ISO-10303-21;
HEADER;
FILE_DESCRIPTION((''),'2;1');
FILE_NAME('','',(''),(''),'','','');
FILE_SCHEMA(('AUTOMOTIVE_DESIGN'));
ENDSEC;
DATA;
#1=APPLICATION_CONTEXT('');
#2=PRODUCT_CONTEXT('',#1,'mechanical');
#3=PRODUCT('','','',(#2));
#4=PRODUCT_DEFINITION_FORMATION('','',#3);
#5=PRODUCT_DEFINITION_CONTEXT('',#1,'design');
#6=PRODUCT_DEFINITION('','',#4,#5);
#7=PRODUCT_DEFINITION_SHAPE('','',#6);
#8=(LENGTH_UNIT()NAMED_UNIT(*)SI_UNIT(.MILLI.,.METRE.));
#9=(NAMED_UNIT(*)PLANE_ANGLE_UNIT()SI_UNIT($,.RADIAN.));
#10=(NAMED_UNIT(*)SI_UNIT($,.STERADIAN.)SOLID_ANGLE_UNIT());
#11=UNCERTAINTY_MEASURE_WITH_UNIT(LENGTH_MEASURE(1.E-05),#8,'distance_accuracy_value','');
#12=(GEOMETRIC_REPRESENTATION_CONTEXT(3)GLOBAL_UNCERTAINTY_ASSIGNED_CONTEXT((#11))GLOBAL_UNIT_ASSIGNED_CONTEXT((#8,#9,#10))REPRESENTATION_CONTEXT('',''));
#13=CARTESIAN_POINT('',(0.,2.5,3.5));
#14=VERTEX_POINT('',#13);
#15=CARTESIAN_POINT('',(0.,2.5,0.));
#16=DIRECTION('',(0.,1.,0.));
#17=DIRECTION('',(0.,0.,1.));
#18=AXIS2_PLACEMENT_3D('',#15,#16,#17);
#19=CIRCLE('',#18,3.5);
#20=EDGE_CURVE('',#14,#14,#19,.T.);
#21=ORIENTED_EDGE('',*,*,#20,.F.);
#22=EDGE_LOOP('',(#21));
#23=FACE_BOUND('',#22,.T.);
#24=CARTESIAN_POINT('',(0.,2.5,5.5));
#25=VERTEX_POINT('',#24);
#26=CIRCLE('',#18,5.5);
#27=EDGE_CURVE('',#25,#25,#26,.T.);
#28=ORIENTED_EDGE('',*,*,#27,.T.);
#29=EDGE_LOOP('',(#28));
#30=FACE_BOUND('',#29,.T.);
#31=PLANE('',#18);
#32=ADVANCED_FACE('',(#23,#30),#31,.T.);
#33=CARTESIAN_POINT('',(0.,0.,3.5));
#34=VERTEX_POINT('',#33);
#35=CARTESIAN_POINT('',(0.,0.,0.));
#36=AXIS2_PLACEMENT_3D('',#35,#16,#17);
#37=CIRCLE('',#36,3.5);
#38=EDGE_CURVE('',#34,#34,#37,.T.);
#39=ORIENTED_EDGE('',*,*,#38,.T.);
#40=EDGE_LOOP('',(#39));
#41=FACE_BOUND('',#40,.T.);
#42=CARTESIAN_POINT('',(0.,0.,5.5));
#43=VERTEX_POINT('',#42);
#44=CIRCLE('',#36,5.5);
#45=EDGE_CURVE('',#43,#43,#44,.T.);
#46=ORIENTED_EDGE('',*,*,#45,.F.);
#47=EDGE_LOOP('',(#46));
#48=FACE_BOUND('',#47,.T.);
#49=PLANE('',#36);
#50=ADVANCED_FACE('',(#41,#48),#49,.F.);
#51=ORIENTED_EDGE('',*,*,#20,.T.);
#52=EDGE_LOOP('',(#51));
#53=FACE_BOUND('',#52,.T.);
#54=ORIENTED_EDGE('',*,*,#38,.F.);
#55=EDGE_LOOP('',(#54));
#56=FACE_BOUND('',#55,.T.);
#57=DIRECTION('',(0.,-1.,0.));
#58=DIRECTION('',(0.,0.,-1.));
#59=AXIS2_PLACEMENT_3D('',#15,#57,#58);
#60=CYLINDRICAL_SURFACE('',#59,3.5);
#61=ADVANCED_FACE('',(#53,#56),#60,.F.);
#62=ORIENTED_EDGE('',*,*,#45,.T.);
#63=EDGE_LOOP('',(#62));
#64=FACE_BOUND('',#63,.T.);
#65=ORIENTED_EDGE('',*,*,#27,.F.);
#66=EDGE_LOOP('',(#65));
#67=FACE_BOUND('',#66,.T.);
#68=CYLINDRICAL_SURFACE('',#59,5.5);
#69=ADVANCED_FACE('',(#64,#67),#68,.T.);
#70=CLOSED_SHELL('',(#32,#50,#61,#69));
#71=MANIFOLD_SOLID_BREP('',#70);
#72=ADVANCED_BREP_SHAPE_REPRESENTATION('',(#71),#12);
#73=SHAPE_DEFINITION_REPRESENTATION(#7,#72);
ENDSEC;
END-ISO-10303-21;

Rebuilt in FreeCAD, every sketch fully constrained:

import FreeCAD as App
import Part
import Sketcher

V = App.Vector
Q = App.Units.Quantity

doc = App.newDocument("Part")
body = doc.addObject("PartDesign::Body", "Body")

sketch1 = doc.addObject("Sketcher::SketchObject", "Sketch")
body.addObject(sketch1)
sketch1.AttachmentSupport = (doc.XZ_Plane, [""])
sketch1.MapMode = "FlatFace"
sketch1.addGeometry([
    Part.Circle(V(0, 0, 0), V(0, 0, 1), 5.5),
    Part.Circle(V(0, 0, 0), V(0, 0, 1), 3.5),
], False)
sketch1.addConstraint([
    Sketcher.Constraint("Coincident", 0, 3, -1, 1),
    Sketcher.Constraint("Coincident", 1, 3, -1, 1),
    Sketcher.Constraint("Diameter", 0, Q("11 mm")),
    Sketcher.Constraint("Diameter", 1, Q("7 mm")),
])
pad1 = doc.addObject("PartDesign::Pad", "Pad")
body.addObject(pad1)
pad1.Profile = sketch1
pad1.Length = 2.5
pad1.Reversed = True

doc.recompute()
